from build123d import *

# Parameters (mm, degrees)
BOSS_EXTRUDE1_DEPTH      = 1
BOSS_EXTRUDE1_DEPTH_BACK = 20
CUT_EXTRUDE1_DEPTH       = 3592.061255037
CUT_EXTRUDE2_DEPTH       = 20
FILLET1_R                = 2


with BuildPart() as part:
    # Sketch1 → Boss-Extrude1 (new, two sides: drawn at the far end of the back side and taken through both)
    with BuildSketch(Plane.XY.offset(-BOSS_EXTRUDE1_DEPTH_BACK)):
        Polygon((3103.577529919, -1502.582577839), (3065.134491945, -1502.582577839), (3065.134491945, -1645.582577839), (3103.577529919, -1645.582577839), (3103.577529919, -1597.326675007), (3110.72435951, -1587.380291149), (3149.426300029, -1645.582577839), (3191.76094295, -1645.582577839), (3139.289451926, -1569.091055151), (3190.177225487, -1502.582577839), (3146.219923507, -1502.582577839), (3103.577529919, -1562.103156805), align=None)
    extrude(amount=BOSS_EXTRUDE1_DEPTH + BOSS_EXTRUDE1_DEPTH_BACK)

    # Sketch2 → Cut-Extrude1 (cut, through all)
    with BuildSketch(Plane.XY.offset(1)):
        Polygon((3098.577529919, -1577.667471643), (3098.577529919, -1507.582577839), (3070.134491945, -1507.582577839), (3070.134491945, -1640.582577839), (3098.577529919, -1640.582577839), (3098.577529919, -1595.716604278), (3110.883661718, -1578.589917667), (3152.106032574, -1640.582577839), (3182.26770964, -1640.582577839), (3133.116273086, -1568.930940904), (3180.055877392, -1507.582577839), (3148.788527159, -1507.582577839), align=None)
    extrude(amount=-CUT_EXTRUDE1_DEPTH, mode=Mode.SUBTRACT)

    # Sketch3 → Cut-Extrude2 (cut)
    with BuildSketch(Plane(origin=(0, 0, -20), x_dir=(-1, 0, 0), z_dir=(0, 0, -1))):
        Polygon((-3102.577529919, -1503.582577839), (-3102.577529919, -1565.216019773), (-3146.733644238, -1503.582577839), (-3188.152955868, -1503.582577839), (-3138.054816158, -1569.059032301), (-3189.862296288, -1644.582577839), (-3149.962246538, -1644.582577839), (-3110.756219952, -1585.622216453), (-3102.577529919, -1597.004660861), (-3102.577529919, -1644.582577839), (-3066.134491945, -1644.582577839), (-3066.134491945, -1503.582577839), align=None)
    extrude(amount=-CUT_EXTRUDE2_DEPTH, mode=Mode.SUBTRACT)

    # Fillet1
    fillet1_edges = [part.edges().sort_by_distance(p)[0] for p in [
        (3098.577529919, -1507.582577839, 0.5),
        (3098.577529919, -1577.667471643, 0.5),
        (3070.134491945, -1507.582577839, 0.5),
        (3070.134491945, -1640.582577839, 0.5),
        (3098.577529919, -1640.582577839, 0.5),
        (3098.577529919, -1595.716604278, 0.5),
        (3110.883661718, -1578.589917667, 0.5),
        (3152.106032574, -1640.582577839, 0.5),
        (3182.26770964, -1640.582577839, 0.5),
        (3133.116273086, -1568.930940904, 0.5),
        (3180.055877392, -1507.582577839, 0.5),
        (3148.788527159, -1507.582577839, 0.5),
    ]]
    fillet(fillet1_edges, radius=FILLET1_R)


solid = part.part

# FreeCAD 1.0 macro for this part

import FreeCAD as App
import Part
import Sketcher
from FreeCAD import Vector
Q = App.Units.Quantity


def edges_at(feature, points):
    """Names of the edges that pass closest to the given points."""
    edges = feature.Shape.Edges
    near = lambda p: min(range(len(edges)), key=lambda i: edges[i].distToShape(Part.Vertex(*p))[0])
    return sorted({f"Edge{near(p) + 1}" for p in points})

doc = App.newDocument("Part")
body = doc.addObject("PartDesign::Body", "Body")

sketch1 = body.newObject("Sketcher::SketchObject", "Sketch")
sketch1.AttachmentSupport = (doc.getObject("XY_Plane"), [""])
sketch1.MapMode = "FlatFace"
sketch1.addGeometry([
    Part.LineSegment(Vector(3104, -1503, 0), Vector(3065, -1503, 0)),
    Part.LineSegment(Vector(3065, -1503, 0), Vector(3065, -1646, 0)),
    Part.LineSegment(Vector(3065, -1646, 0), Vector(3104, -1646, 0)),
    Part.LineSegment(Vector(3104, -1646, 0), Vector(3104, -1597, 0)),
    Part.LineSegment(Vector(3104, -1597, 0), Vector(3111, -1587, 0)),
    Part.LineSegment(Vector(3111, -1587, 0), Vector(3149, -1646, 0)),
    Part.LineSegment(Vector(3149, -1646, 0), Vector(3192, -1646, 0)),
    Part.LineSegment(Vector(3192, -1646, 0), Vector(3139, -1569, 0)),
    Part.LineSegment(Vector(3139, -1569, 0), Vector(3190, -1503, 0)),
    Part.LineSegment(Vector(3190, -1503, 0), Vector(3146, -1503, 0)),
    Part.LineSegment(Vector(3146, -1503, 0), Vector(3104, -1562, 0)),
    Part.LineSegment(Vector(3104, -1562, 0), Vector(3104, -1503, 0)),
], False)
sketch1.addConstraint([
    Sketcher.Constraint("Coincident", 0, 2, 1, 1),
    Sketcher.Constraint("Coincident", 1, 2, 2, 1),
    Sketcher.Constraint("Coincident", 2, 2, 3, 1),
    Sketcher.Constraint("Coincident", 3, 2, 4, 1),
    Sketcher.Constraint("Coincident", 4, 2, 5, 1),
    Sketcher.Constraint("Coincident", 5, 2, 6, 1),
    Sketcher.Constraint("Coincident", 6, 2, 7, 1),
    Sketcher.Constraint("Coincident", 7, 2, 8, 1),
    Sketcher.Constraint("Coincident", 8, 2, 9, 1),
    Sketcher.Constraint("Coincident", 9, 2, 10, 1),
    Sketcher.Constraint("Coincident", 10, 2, 11, 1),
    Sketcher.Constraint("Coincident", 11, 2, 0, 1),
    Sketcher.Constraint("Horizontal", 0),
    Sketcher.Constraint("Vertical", 1),
    Sketcher.Constraint("Horizontal", 2),
    Sketcher.Constraint("Vertical", 3),
    Sketcher.Constraint("Horizontal", 6),
    Sketcher.Constraint("Horizontal", 9),
    Sketcher.Constraint("Vertical", 11),
    Sketcher.Constraint("Horizontal", 2, 2, 5, 2),
    Sketcher.Constraint("Horizontal", 0, 2, 8, 2),
    Sketcher.Constraint("Vertical", 3, 2, 10, 2),
    Sketcher.Constraint("DistanceY", 1, 2, 1, 1, Q("143 mm")),
    Sketcher.Constraint("DistanceX", 9, 2, 9, 1, Q("43.957302 mm")),
    Sketcher.Constraint("DistanceY", 11, 1, 11, 2, Q("59.520579 mm")),
    Sketcher.Constraint("DistanceX", -1, 1, 5, 2, Q("3149.4263 mm")),
    Sketcher.Constraint("DistanceY", 7, 2, 10, 2, Q("6.987898 mm")),
    Sketcher.Constraint("Distance", 10, Q("73.219349 mm")),
    Sketcher.Constraint("DistanceX", 0, 2, 0, 1, Q("38.443038 mm")),
    Sketcher.Constraint("DistanceX", 6, 1, 6, 2, Q("42.334643 mm")),
    Sketcher.Constraint("DistanceY", 3, 1, 3, 2, Q("48.255903 mm")),
    Sketcher.Constraint("DistanceX", -1, 1, 0, 2, Q("3065.134492 mm")),
    Sketcher.Constraint("DistanceX", -1, 1, 4, 2, Q("3110.72436 mm")),
    Sketcher.Constraint("DistanceY", 4, 2, -1, 1, Q("1587.380291 mm")),
    Sketcher.Constraint("DistanceX", -1, 1, 7, 2, Q("3139.289452 mm")),
    Sketcher.Constraint("Distance", 4, Q("12.247764 mm")),
])
pad1 = body.newObject("PartDesign::Pad", "Pad")
pad1.Profile = sketch1
pad1.Type = "TwoLengths"
pad1.Length = 1
pad1.Length2 = 20

sketch2 = body.newObject("Sketcher::SketchObject", "Sketch001")
sketch2.AttachmentSupport = (doc.getObject("XY_Plane"), [""])
sketch2.MapMode = "FlatFace"
sketch2.AttachmentOffset = App.Placement(Vector(0, 0, 1), App.Rotation())
sketch2.addGeometry([
    Part.LineSegment(Vector(3099, -1578, 0), Vector(3099, -1508, 0)),
    Part.LineSegment(Vector(3099, -1508, 0), Vector(3070, -1508, 0)),
    Part.LineSegment(Vector(3070, -1508, 0), Vector(3070, -1641, 0)),
    Part.LineSegment(Vector(3070, -1641, 0), Vector(3099, -1641, 0)),
    Part.LineSegment(Vector(3099, -1641, 0), Vector(3099, -1596, 0)),
    Part.LineSegment(Vector(3099, -1596, 0), Vector(3111, -1579, 0)),
    Part.LineSegment(Vector(3111, -1579, 0), Vector(3152, -1641, 0)),
    Part.LineSegment(Vector(3152, -1641, 0), Vector(3182, -1641, 0)),
    Part.LineSegment(Vector(3182, -1641, 0), Vector(3133, -1569, 0)),
    Part.LineSegment(Vector(3133, -1569, 0), Vector(3180, -1508, 0)),
    Part.LineSegment(Vector(3180, -1508, 0), Vector(3149, -1508, 0)),
    Part.LineSegment(Vector(3149, -1508, 0), Vector(3099, -1578, 0)),
], False)
sketch2.addConstraint([
    Sketcher.Constraint("Coincident", 0, 2, 1, 1),
    Sketcher.Constraint("Coincident", 1, 2, 2, 1),
    Sketcher.Constraint("Coincident", 2, 2, 3, 1),
    Sketcher.Constraint("Coincident", 3, 2, 4, 1),
    Sketcher.Constraint("Coincident", 4, 2, 5, 1),
    Sketcher.Constraint("Coincident", 5, 2, 6, 1),
    Sketcher.Constraint("Coincident", 6, 2, 7, 1),
    Sketcher.Constraint("Coincident", 7, 2, 8, 1),
    Sketcher.Constraint("Coincident", 8, 2, 9, 1),
    Sketcher.Constraint("Coincident", 9, 2, 10, 1),
    Sketcher.Constraint("Coincident", 10, 2, 11, 1),
    Sketcher.Constraint("Coincident", 11, 2, 0, 1),
    Sketcher.Constraint("Vertical", 0),
    Sketcher.Constraint("Horizontal", 1),
    Sketcher.Constraint("Vertical", 2),
    Sketcher.Constraint("Horizontal", 3),
    Sketcher.Constraint("Vertical", 4),
    Sketcher.Constraint("Horizontal", 7),
    Sketcher.Constraint("Horizontal", 10),
    Sketcher.Constraint("Horizontal", 3, 2, 6, 2),
    Sketcher.Constraint("Horizontal", 1, 2, 9, 2),
    Sketcher.Constraint("Vertical", 0, 2, 3, 2),
    Sketcher.Constraint("DistanceY", 2, 2, 2, 1, Q("133 mm")),
    Sketcher.Constraint("DistanceX", 10, 2, 10, 1, Q("31.26735 mm")),
    Sketcher.Constraint("Distance", 6, Q("74.447121 mm")),
    Sketcher.Constraint("Distance", 11, Q("86.21506 mm")),
    Sketcher.Constraint("DistanceX", 1, 2, 1, 1, Q("28.443038 mm")),
    Sketcher.Constraint("DistanceX", 7, 1, 7, 2, Q("30.161677 mm")),
    Sketcher.Constraint("DistanceY", 0, 1, 0, 2, Q("70.084894 mm")),
    Sketcher.Constraint("DistanceY", 4, 1, 4, 2, Q("44.865974 mm")),
    Sketcher.Constraint("DistanceX", -1, 1, 0, 2, Q("3098.57753 mm")),
    Sketcher.Constraint("DistanceX", -1, 1, 5, 2, Q("3110.883662 mm")),
    Sketcher.Constraint("DistanceX", -1, 1, 7, 2, Q("3182.26771 mm")),
    Sketcher.Constraint("DistanceY", 8, 2, -1, 1, Q("1568.930941 mm")),
    Sketcher.Constraint("DistanceY", 11, 2, -1, 1, Q("1577.667472 mm")),
    Sketcher.Constraint("DistanceX", 5, 2, 8, 2, Q("22.232611 mm")),
])
pocket1 = body.newObject("PartDesign::Pocket", "Pocket")
pocket1.Profile = sketch2
pocket1.Type = "ThroughAll"

sketch3 = body.newObject("Sketcher::SketchObject", "Sketch002")
sketch3.AttachmentSupport = (doc.getObject("XY_Plane"), [""])
sketch3.MapMode = "FlatFace"
sketch3.AttachmentOffset = App.Placement(Vector(0, 0, -20), App.Rotation())
sketch3.addGeometry([
    Part.LineSegment(Vector(3103, -1504, 0), Vector(3103, -1565, 0)),
    Part.LineSegment(Vector(3103, -1565, 0), Vector(3147, -1504, 0)),
    Part.LineSegment(Vector(3147, -1504, 0), Vector(3188, -1504, 0)),
    Part.LineSegment(Vector(3188, -1504, 0), Vector(3138, -1569, 0)),
    Part.LineSegment(Vector(3138, -1569, 0), Vector(3190, -1645, 0)),
    Part.LineSegment(Vector(3190, -1645, 0), Vector(3150, -1645, 0)),
    Part.LineSegment(Vector(3150, -1645, 0), Vector(3111, -1586, 0)),
    Part.LineSegment(Vector(3111, -1586, 0), Vector(3103, -1597, 0)),
    Part.LineSegment(Vector(3103, -1597, 0), Vector(3103, -1645, 0)),
    Part.LineSegment(Vector(3103, -1645, 0), Vector(3066, -1645, 0)),
    Part.LineSegment(Vector(3066, -1645, 0), Vector(3066, -1504, 0)),
    Part.LineSegment(Vector(3066, -1504, 0), Vector(3103, -1504, 0)),
], False)
sketch3.addConstraint([
    Sketcher.Constraint("Coincident", 0, 2, 1, 1),
    Sketcher.Constraint("Coincident", 1, 2, 2, 1),
    Sketcher.Constraint("Coincident", 2, 2, 3, 1),
    Sketcher.Constraint("Coincident", 3, 2, 4, 1),
    Sketcher.Constraint("Coincident", 4, 2, 5, 1),
    Sketcher.Constraint("Coincident", 5, 2, 6, 1),
    Sketcher.Constraint("Coincident", 6, 2, 7, 1),
    Sketcher.Constraint("Coincident", 7, 2, 8, 1),
    Sketcher.Constraint("Coincident", 8, 2, 9, 1),
    Sketcher.Constraint("Coincident", 9, 2, 10, 1),
    Sketcher.Constraint("Coincident", 10, 2, 11, 1),
    Sketcher.Constraint("Coincident", 11, 2, 0, 1),
    Sketcher.Constraint("Vertical", 0),
    Sketcher.Constraint("Horizontal", 2),
    Sketcher.Constraint("Horizontal", 5),
    Sketcher.Constraint("Vertical", 8),
    Sketcher.Constraint("Horizontal", 9),
    Sketcher.Constraint("Vertical", 10),
    Sketcher.Constraint("Horizontal", 11),
    Sketcher.Constraint("Horizontal", 5, 2, 8, 2),
    Sketcher.Constraint("Horizontal", 2, 2, 10, 2),
    Sketcher.Constraint("Vertical", 0, 2, 7, 2),
    Sketcher.Constraint("DistanceY", 10, 1, 10, 2, Q("141 mm")),
    Sketcher.Constraint("Distance", 7, Q("14.016098 mm")),
    Sketcher.Constraint("DistanceX", 2, 1, 2, 2, Q("41.419312 mm")),
    Sketcher.Constraint("DistanceX", 5, 2, 5, 1, Q("39.90005 mm")),
    Sketcher.Constraint("DistanceY", 0, 2, 0, 1, Q("61.633442 mm")),
    Sketcher.Constraint("Distance", 1, Q("75.818491 mm")),
    Sketcher.Constraint("DistanceX", 9, 2, 9, 1, Q("36.443038 mm")),
    Sketcher.Constraint("DistanceY", 8, 2, 8, 1, Q("47.577917 mm")),
    Sketcher.Constraint("DistanceX", -1, 1, 0, 2, Q("3102.57753 mm")),
    Sketcher.Constraint("DistanceY", 0, 2, -1, 1, Q("1565.21602 mm")),
    Sketcher.Constraint("DistanceX", -1, 1, 6, 2, Q("3110.75622 mm")),
    Sketcher.Constraint("DistanceX", 3, 2, 1, 2, Q("8.678828 mm")),
    Sketcher.Constraint("DistanceX", 3, 2, 4, 2, Q("51.80748 mm")),
    Sketcher.Constraint("DistanceY", 7, 2, 3, 2, Q("27.945629 mm")),
])
pocket2 = body.newObject("PartDesign::Pocket", "Pocket001")
pocket2.Profile = sketch3
pocket2.Length = 20
pocket2.Reversed = True
doc.recompute()

fillet = body.newObject("PartDesign::Fillet", "Fillet")
fillet.Base = (pocket2, edges_at(pocket2, [
    (3098.578, -1507.583, 0.5),
    (3098.578, -1577.667, 0.5),
    (3070.134, -1507.583, 0.5),
    (3070.134, -1640.583, 0.5),
    (3098.578, -1640.583, 0.5),
    (3098.578, -1595.717, 0.5),
    (3110.884, -1578.59, 0.5),
    (3152.106, -1640.583, 0.5),
    (3182.268, -1640.583, 0.5),
    (3133.116, -1568.931, 0.5),
    (3180.056, -1507.583, 0.5),
    (3148.789, -1507.583, 0.5),
]))
fillet.Radius = 2

doc.recompute()
